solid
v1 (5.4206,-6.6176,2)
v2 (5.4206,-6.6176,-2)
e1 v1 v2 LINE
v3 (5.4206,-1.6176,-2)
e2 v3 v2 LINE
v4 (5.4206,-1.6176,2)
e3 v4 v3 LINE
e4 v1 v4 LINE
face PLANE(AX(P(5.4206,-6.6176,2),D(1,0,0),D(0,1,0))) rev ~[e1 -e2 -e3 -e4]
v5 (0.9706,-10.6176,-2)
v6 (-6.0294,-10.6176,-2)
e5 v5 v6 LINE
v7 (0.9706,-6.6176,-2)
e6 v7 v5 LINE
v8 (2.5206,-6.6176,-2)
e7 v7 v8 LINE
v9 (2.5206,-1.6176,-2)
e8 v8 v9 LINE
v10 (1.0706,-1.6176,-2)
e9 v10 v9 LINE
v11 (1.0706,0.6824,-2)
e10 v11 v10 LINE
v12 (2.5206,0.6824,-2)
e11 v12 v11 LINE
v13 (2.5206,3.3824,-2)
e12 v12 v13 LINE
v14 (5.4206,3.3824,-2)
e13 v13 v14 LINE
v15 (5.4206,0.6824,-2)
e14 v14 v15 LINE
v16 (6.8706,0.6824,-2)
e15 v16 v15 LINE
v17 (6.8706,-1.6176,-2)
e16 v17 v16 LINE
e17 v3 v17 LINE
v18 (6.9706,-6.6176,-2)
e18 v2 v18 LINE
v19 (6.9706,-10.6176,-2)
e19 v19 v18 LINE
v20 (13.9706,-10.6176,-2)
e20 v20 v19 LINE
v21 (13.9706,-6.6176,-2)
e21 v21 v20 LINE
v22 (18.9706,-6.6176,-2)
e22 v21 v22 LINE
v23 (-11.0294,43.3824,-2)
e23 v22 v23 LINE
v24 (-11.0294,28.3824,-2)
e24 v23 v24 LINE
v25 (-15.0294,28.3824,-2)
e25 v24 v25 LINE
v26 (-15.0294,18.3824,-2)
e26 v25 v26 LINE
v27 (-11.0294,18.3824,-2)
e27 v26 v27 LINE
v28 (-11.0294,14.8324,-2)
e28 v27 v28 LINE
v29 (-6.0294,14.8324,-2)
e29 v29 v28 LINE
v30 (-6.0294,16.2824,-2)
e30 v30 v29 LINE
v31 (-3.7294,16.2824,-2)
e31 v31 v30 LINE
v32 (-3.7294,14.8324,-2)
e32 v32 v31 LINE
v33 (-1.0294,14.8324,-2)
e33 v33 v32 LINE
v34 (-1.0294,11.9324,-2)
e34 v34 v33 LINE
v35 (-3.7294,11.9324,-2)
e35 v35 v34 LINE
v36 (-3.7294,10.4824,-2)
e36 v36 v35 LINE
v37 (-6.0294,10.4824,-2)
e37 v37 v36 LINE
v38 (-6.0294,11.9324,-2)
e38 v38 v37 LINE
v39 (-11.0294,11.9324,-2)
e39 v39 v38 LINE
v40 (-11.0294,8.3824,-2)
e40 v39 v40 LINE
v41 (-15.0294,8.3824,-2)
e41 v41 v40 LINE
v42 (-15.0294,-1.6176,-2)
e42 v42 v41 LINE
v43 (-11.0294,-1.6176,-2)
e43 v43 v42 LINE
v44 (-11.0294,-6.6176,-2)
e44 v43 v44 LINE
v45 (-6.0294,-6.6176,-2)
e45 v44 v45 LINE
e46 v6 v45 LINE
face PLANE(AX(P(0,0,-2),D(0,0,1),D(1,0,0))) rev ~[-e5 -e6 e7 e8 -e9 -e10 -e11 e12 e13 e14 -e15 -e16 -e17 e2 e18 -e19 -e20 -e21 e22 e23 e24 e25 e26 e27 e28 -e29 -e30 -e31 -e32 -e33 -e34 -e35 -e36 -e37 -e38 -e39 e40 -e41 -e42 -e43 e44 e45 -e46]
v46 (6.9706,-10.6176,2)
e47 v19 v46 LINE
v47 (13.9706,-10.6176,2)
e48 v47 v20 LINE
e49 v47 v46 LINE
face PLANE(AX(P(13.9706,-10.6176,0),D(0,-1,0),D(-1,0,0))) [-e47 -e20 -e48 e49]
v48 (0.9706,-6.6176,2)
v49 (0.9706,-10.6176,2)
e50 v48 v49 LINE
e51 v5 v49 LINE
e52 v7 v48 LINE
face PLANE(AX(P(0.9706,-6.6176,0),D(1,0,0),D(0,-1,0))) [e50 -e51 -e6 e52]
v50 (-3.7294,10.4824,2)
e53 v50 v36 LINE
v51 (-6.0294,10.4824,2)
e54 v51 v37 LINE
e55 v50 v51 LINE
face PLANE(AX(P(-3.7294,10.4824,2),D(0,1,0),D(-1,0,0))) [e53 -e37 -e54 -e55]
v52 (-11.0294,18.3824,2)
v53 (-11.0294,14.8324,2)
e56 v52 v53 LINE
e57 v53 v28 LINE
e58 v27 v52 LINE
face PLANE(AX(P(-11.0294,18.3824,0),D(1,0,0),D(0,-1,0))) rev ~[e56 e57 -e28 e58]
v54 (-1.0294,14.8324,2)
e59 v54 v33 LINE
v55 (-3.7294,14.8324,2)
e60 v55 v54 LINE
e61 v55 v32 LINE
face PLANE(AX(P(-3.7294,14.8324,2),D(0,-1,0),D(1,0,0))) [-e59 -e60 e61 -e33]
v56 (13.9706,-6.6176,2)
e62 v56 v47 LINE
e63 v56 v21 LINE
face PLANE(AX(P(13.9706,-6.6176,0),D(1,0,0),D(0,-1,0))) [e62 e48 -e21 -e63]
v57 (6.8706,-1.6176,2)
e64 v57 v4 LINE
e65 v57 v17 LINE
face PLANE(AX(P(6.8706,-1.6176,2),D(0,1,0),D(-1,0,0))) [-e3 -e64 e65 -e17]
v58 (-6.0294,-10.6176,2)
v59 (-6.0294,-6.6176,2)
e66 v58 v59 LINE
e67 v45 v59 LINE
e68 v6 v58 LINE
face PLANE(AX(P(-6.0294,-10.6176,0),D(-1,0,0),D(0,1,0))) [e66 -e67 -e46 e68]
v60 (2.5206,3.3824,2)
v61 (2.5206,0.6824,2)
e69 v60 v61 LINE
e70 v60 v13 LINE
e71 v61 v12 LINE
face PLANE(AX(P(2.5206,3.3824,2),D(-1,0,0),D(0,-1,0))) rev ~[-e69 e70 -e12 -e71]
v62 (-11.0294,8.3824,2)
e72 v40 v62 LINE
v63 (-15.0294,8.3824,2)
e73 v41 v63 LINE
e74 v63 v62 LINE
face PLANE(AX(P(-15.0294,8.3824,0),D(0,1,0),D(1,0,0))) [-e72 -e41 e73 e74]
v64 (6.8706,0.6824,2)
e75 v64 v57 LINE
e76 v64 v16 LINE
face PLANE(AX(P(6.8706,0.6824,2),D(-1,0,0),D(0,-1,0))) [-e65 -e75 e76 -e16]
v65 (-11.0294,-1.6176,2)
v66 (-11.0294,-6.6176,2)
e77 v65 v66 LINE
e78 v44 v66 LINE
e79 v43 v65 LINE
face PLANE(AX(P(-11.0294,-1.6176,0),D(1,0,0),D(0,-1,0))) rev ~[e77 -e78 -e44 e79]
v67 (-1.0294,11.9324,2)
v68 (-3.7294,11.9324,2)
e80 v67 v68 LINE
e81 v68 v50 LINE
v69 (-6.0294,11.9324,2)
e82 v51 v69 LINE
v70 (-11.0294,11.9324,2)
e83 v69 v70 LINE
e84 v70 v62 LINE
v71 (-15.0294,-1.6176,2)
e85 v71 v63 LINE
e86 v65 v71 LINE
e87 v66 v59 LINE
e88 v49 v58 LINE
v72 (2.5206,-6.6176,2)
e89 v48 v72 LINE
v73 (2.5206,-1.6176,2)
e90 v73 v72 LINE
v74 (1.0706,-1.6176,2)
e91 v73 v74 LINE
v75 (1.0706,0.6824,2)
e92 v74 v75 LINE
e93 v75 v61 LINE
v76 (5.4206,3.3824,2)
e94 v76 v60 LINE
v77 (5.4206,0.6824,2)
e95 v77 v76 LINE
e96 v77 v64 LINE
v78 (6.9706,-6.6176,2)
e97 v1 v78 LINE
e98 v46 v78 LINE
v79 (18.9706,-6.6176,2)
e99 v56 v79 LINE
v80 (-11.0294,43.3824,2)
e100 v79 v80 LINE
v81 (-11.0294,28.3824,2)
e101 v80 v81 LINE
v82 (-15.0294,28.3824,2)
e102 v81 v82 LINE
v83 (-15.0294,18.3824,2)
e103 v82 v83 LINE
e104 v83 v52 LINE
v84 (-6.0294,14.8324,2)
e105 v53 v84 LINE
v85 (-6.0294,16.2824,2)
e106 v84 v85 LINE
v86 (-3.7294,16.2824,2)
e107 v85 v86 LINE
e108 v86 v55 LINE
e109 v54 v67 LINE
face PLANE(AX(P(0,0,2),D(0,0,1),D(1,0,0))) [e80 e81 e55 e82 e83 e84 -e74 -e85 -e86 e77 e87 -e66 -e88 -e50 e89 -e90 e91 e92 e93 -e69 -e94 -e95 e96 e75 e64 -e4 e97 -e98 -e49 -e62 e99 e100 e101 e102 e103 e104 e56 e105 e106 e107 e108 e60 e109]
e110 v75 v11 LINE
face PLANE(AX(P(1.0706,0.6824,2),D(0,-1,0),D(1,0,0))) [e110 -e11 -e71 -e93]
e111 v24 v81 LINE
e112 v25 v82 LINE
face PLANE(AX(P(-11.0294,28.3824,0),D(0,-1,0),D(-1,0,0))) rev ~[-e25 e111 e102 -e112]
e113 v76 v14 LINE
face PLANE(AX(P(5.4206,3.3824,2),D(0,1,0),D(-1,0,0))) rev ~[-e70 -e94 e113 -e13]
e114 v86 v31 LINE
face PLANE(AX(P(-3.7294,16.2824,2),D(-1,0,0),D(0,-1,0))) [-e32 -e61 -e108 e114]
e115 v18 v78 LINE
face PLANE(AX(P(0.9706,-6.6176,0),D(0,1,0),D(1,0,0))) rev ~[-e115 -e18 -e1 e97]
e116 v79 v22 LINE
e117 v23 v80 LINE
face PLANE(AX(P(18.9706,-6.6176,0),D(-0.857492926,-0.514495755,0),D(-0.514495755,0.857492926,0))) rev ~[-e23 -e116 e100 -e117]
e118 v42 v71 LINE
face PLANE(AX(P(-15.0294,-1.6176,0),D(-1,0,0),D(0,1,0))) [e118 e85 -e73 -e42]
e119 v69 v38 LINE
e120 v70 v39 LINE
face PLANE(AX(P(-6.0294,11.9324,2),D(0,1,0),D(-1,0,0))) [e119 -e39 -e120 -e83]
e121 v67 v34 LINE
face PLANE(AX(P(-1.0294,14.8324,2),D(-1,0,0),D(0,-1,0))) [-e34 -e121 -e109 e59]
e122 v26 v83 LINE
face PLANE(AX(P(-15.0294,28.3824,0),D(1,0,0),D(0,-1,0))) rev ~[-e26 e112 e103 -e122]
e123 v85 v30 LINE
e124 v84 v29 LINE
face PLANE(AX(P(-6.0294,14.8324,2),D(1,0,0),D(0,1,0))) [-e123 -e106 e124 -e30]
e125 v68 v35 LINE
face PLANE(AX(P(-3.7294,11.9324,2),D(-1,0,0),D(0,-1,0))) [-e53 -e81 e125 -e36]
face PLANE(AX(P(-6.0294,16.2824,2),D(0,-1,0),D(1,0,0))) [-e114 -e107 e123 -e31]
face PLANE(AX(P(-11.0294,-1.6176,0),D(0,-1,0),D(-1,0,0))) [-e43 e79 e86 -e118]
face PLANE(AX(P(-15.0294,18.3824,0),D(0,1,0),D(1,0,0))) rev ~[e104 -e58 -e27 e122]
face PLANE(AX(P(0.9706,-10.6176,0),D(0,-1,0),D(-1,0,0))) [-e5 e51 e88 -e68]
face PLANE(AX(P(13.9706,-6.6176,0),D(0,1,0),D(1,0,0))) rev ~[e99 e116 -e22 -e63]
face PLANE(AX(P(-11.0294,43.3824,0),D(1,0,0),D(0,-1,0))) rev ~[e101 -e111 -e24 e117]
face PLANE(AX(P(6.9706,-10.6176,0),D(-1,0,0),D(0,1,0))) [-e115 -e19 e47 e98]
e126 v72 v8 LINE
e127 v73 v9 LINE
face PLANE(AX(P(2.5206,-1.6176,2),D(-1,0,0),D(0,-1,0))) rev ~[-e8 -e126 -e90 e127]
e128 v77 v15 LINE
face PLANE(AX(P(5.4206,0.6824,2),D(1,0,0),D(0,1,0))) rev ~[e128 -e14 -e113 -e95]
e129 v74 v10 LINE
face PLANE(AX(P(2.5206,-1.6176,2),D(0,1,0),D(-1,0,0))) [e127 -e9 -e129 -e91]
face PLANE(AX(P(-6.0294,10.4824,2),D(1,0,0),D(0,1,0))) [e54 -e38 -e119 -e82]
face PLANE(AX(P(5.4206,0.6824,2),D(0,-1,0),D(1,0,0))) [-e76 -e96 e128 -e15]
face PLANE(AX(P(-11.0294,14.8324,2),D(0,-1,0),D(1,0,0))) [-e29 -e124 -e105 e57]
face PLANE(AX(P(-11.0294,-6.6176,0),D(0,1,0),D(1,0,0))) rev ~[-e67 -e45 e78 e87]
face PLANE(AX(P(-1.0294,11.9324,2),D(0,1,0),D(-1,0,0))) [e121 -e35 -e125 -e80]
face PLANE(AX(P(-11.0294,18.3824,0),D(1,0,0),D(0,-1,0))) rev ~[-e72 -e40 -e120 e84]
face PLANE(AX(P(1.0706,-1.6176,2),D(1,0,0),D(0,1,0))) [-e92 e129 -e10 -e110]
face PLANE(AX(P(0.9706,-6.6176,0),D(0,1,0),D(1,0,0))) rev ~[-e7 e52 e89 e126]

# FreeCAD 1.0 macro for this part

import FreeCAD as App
import Part
import Sketcher

V = App.Vector


def add_polygon(sketch, points):
    """Adds a closed chain of lines whose ends are joined by coincident constraints."""
    first, n = sketch.GeometryCount, len(points)
    for a, b in zip(points, points[1:] + points[:1]):
        sketch.addGeometry(Part.LineSegment(App.Vector(*a, 0), App.Vector(*b, 0)), False)
    for i in range(n):
        sketch.addConstraint(Sketcher.Constraint("Coincident", first + i, 2, first + (i + 1) % n, 1))

doc = App.newDocument("Part")
body = doc.addObject("PartDesign::Body", "Body")

# Sketch on XY plane
sketch1 = body.newObject("Sketcher::SketchObject", "Sketch")
sketch1.AttachmentSupport = (doc.getObject("XY_Plane"), [""])
sketch1.MapMode = "FlatFace"
add_polygon(sketch1, [(19, -6.6), (-11, 43.4), (-11, 28.4), (-15, 28.4), (-15, 18.4), (-11, 18.4), (-11, 8.4), (-15, 8.4), (-15, -1.6), (-11, -1.6), (-11, -6.6), (-6, -6.6), (-6, -10.6), (1, -10.6), (1, -6.6), (7, -6.6), (7, -10.6), (14, -10.6), (14, -6.6)])  # lines 0-18
sketch1.addConstraint([
    Sketcher.Constraint("Vertical", 1),
    Sketcher.Constraint("Horizontal", 2),
    Sketcher.Constraint("Vertical", 3),
    Sketcher.Constraint("Horizontal", 4),
    Sketcher.Constraint("Vertical", 5),
    Sketcher.Constraint("Horizontal", 6),
    Sketcher.Constraint("Vertical", 7),
    Sketcher.Constraint("Horizontal", 8),
    Sketcher.Constraint("Vertical", 9),
    Sketcher.Constraint("Horizontal", 10),
    Sketcher.Constraint("Vertical", 11),
    Sketcher.Constraint("Horizontal", 12),
    Sketcher.Constraint("Vertical", 13),
    Sketcher.Constraint("Horizontal", 14),
    Sketcher.Constraint("Vertical", 15),
    Sketcher.Constraint("Horizontal", 16),
    Sketcher.Constraint("Vertical", 17),
    Sketcher.Constraint("Horizontal", 18),
    Sketcher.Constraint("Horizontal", 10, 2, 13, 2),
    Sketcher.Constraint("Horizontal", 12, 2, 15, 2),
    Sketcher.Constraint("Horizontal", 14, 2, 17, 2),
    Sketcher.Constraint("Vertical", 1, 2, 4, 2),
    Sketcher.Constraint("Vertical", 3, 2, 6, 2),
    Sketcher.Constraint("Vertical", 5, 2, 8, 2),
    Sketcher.Constraint("Equal", 12, 16),
    Sketcher.Constraint("Equal", 10, 18),
    Sketcher.Constraint("Equal", 3, 5),
    Sketcher.Constraint("Equal", 5, 7),
    Sketcher.Constraint("Equal", 18, 9),
    Sketcher.Constraint("Equal", 8, 11),
    Sketcher.Constraint("DistanceX", 2, 2, 2, 1, 4.0),
    Sketcher.Constraint("DistanceX", 10, 1, 10, 2, 5.0),
    Sketcher.Constraint("DistanceX", 12, 1, 12, 2, 7.0),
    Sketcher.Constraint("DistanceY", 1, 2, 1, 1, 15.0),
    Sketcher.Constraint("DistanceY", 3, 2, 3, 1, 10.0),
    Sketcher.Constraint("DistanceX", 14, 1, 14, 2, 6.0),
    Sketcher.Constraint("DistanceX", 0, 2, -1, 1, 11.0294),
    Sketcher.Constraint("DistanceY", -1, 1, 0, 2, 43.3824),
])
pad1 = body.newObject("PartDesign::Pad", "Pad")
pad1.Profile = sketch1
pad1.Length = 4
pad1.Midplane = True

# Sketch on XY plane
sketch2 = body.newObject("Sketcher::SketchObject", "Sketch001")
sketch2.AttachmentSupport = (doc.getObject("XY_Plane"), [""])
sketch2.MapMode = "FlatFace"
sketch2.AttachmentOffset = App.Placement(V(0, 0, 2), App.Rotation())
add_polygon(sketch2, [(-6, 14.8), (-11, 14.8), (-11, 11.9), (-6, 11.9), (-6, 10.5), (-3.7, 10.5), (-3.7, 11.9), (-1, 11.9), (-1, 14.8), (-3.7, 14.8), (-3.7, 16.3), (-6, 16.3)])  # lines 0-11
add_polygon(sketch2, [(2.5, -1.6), (2.5, -6.6), (5.4, -6.6), (5.4, -1.6), (6.9, -1.6), (6.9, 0.7), (5.4, 0.7), (5.4, 3.4), (2.5, 3.4), (2.5, 0.7), (1.1, 0.7), (1.1, -1.6)])  # lines 12-23
sketch2.addConstraint([
    Sketcher.Constraint("Horizontal", 0),
    Sketcher.Constraint("Vertical", 1),
    Sketcher.Constraint("Horizontal", 2),
    Sketcher.Constraint("Vertical", 3),
    Sketcher.Constraint("Horizontal", 4),
    Sketcher.Constraint("Vertical", 5),
    Sketcher.Constraint("Horizontal", 6),
    Sketcher.Constraint("Vertical", 7),
    Sketcher.Constraint("Horizontal", 8),
    Sketcher.Constraint("Vertical", 9),
    Sketcher.Constraint("Horizontal", 10),
    Sketcher.Constraint("Vertical", 11),
    Sketcher.Constraint("Vertical", 12),
    Sketcher.Constraint("Horizontal", 13),
    Sketcher.Constraint("Vertical", 14),
    Sketcher.Constraint("Horizontal", 15),
    Sketcher.Constraint("Vertical", 16),
    Sketcher.Constraint("Horizontal", 17),
    Sketcher.Constraint("Vertical", 18),
    Sketcher.Constraint("Horizontal", 19),
    Sketcher.Constraint("Vertical", 20),
    Sketcher.Constraint("Horizontal", 21),
    Sketcher.Constraint("Vertical", 22),
    Sketcher.Constraint("Horizontal", 23),
    Sketcher.Constraint("Horizontal", 2, 2, 5, 2),
    Sketcher.Constraint("Horizontal", 0, 2, 7, 2),
    Sketcher.Constraint("Horizontal", 17, 2, 20, 2),
    Sketcher.Constraint("Horizontal", 15, 2, 22, 2),
    Sketcher.Constraint("Vertical", 5, 2, 8, 2),
    Sketcher.Constraint("Vertical", 3, 2, 10, 2),
    Sketcher.Constraint("Vertical", 14, 2, 17, 2),
    Sketcher.Constraint("Vertical", 12, 2, 19, 2),
    Sketcher.Constraint("Equal", 17, 21),
    Sketcher.Constraint("Equal", 19, 1),
    Sketcher.Constraint("Equal", 23, 3),
    Sketcher.Constraint("Equal", 5, 9),
    Sketcher.Constraint("Equal", 2, 12),
    Sketcher.Constraint("Equal", 10, 16),
    Sketcher.Constraint("Equal", 8, 18),
    Sketcher.Constraint("DistanceX", 0, 2, 0, 1, 5.0),
    Sketcher.Constraint("DistanceX", 4, 1, 4, 2, 2.3),
    Sketcher.Constraint("DistanceX", 13, 1, 13, 2, 2.9),
    Sketcher.Constraint("DistanceX", 2, 2, 6, 2, 5.0),
    Sketcher.Constraint("DistanceX", 15, 1, 15, 2, 1.45),
    Sketcher.Constraint("DistanceY", 12, 2, 4, 2, 17.1),
    Sketcher.Constraint("DistanceX", 6, 2, 15, 2, 7.9),
    Sketcher.Constraint("DistanceX", 0, 2, -1, 1, 11.0294),
    Sketcher.Constraint("DistanceY", -1, 1, 0, 2, 14.8324),
])
pocket1 = body.newObject("PartDesign::Pocket", "Pocket")
pocket1.Profile = sketch2
pocket1.Type = "UpToFirst"

doc.recompute()
